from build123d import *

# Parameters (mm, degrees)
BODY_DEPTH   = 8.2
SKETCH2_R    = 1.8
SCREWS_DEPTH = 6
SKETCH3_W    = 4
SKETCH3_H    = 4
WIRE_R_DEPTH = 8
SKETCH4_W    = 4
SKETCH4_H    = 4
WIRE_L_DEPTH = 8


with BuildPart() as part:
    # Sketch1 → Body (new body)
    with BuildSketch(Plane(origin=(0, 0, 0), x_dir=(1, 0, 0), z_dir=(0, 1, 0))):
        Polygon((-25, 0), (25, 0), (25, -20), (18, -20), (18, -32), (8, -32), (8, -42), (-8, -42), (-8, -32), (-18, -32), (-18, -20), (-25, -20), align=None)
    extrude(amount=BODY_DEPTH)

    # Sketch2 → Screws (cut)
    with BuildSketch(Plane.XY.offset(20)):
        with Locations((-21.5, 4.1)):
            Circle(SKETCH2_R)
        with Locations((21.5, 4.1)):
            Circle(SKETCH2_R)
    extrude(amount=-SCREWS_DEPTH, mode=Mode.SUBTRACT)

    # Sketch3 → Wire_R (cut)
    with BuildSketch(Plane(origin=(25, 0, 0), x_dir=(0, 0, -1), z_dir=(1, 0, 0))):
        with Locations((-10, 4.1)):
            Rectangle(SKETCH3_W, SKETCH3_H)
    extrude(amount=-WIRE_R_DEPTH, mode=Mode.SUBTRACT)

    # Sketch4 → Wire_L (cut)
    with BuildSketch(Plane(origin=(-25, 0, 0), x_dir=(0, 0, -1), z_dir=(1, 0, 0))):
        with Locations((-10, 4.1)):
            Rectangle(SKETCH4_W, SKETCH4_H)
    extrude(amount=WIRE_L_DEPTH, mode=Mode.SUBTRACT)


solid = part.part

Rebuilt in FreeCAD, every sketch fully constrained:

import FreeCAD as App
import Part
import Sketcher

V = App.Vector


def add_polygon(sketch, points):
    """Adds a closed chain of lines whose ends are joined by coincident constraints."""
    first, n = sketch.GeometryCount, len(points)
    for a, b in zip(points, points[1:] + points[:1]):
        sketch.addGeometry(Part.LineSegment(App.Vector(*a, 0), App.Vector(*b, 0)), False)
    for i in range(n):
        sketch.addConstraint(Sketcher.Constraint("Coincident", first + i, 2, first + (i + 1) % n, 1))

doc = App.newDocument("Part")
params = doc.addObject("Spreadsheet::Sheet", "Params")
for row, (alias, value) in enumerate([
    ("sketch1_width", "50 mm"),
    ("sketch1_width2", "7 mm"),
    ("sketch1_width3", "10 mm"),
    ("sketch1_height", "20 mm"),
    ("sketch1_height2", "12 mm"),
    ("pad1_length", "8.2 mm"),
    ("sketch2_diameter", "3.6 mm"),
    ("pocket1_length", "6 mm"),
    ("sketch3_width", "4 mm"),
    ("pocket2_length", "8 mm"),
    ("sketch4_width", "4 mm"),
    ("pocket3_length", "8 mm"),
], start=1):
    params.set(f"A{row}", alias)
    params.set(f"B{row}", "=" + value)
    params.setAlias(f"B{row}", alias)

body = doc.addObject("PartDesign::Body", "Body")

sketch1 = body.newObject("Sketcher::SketchObject", "Sketch")
sketch1.AttachmentSupport = (doc.getObject("XZ_Plane"), [""])
sketch1.MapMode = "FlatFace"
add_polygon(sketch1, [(25, 0), (-25, 0), (-25, 20), (-18, 20), (-18, 32), (-8, 32), (-8, 42), (8, 42), (8, 32), (18, 32), (18, 20), (25, 20)])
sketch1.addConstraint([
    Sketcher.Constraint("Horizontal", 0),
    Sketcher.Constraint("Vertical", 1),
    Sketcher.Constraint("Horizontal", 2),
    Sketcher.Constraint("Vertical", 3),
    Sketcher.Constraint("Horizontal", 4),
    Sketcher.Constraint("Vertical", 5),
    Sketcher.Constraint("Horizontal", 6),
    Sketcher.Constraint("Vertical", 7),
    Sketcher.Constraint("Horizontal", 8),
    Sketcher.Constraint("Vertical", 9),
    Sketcher.Constraint("Horizontal", 10),
    Sketcher.Constraint("Vertical", 11),
    Sketcher.Constraint("Symmetric", 0, 2, 11, 2, -1, 1),
    Sketcher.Constraint("Symmetric", 4, 2, 7, 2, -2),
    Sketcher.Constraint("Symmetric", 2, 2, 9, 2, -2),
    Sketcher.Constraint("Equal", 8, 5),
    Sketcher.Constraint("DistanceX", 0, 2, 0, 1, 50.0),
    Sketcher.Constraint("DistanceX", 2, 1, 2, 2, 7.0),
    Sketcher.Constraint("DistanceX", 4, 1, 4, 2, 10.0),
    Sketcher.Constraint("DistanceY", 1, 1, 1, 2, 20.0),
    Sketcher.Constraint("DistanceY", 3, 1, 3, 2, 12.0),
])
sketch1.setExpression("Constraints[28]", "Params.sketch1_width")
sketch1.setExpression("Constraints[29]", "Params.sketch1_width2")
sketch1.setExpression("Constraints[30]", "Params.sketch1_width3")
sketch1.setExpression("Constraints[31]", "Params.sketch1_height")
sketch1.setExpression("Constraints[32]", "Params.sketch1_height2")
pad1 = body.newObject("PartDesign::Pad", "Pad")
pad1.Profile = sketch1
pad1.setExpression("Length", "Params.pad1_length")
pad1.Reversed = True

sketch2 = body.newObject("Sketcher::SketchObject", "Sketch001")
sketch2.AttachmentSupport = (doc.getObject("XY_Plane"), [""])
sketch2.MapMode = "FlatFace"
sketch2.AttachmentOffset = App.Placement(V(0, 0, 20), App.Rotation())
sketch2.addGeometry([
    Part.Circle(V(-21.5, 4.1, 0), V(0, 0, 1), 1.8),
    Part.Circle(V(21.5, 4.1, 0), V(0, 0, 1), 1.8),
], False)
sketch2.addConstraint([
    Sketcher.Constraint("Equal", 0, 1),
    Sketcher.Constraint("Symmetric", 0, 3, 1, 3, -2),
    Sketcher.Constraint("Diameter", 0, 3.6),
    Sketcher.Constraint("DistanceX", 0, 3, 1, 3, 43.0),
    Sketcher.Constraint("DistanceY", -1, 1, 0, 3, 4.1),
])
sketch2.setExpression("Constraints[2]", "Params.sketch2_diameter")
pocket1 = body.newObject("PartDesign::Pocket", "Pocket")
pocket1.Profile = sketch2
pocket1.setExpression("Length", "Params.pocket1_length")

sketch3 = body.newObject("Sketcher::SketchObject", "Sketch002")
sketch3.AttachmentSupport = (doc.getObject("YZ_Plane"), [""])
sketch3.MapMode = "FlatFace"
sketch3.AttachmentOffset = App.Placement(V(0, 0, 25), App.Rotation())
add_polygon(sketch3, [(6.1, 12), (2.1, 12), (2.1, 8), (6.1, 8)])
sketch3.addConstraint([
    Sketcher.Constraint("Horizontal", 0),
    Sketcher.Constraint("Vertical", 1),
    Sketcher.Constraint("Horizontal", 2),
    Sketcher.Constraint("Vertical", 3),
    Sketcher.Constraint("Equal", 2, 1),
    Sketcher.Constraint("DistanceX", 0, 2, 0, 1, 4.0),
    Sketcher.Constraint("DistanceY", -1, 1, 0, 2, 12.0),
    Sketcher.Constraint("DistanceX", -1, 1, 0, 2, 2.1),
])
sketch3.setExpression("Constraints[9]", "Params.sketch3_width")
pocket2 = body.newObject("PartDesign::Pocket", "Pocket001")
pocket2.Profile = sketch3
pocket2.setExpression("Length", "Params.pocket2_length")

sketch4 = body.newObject("Sketcher::SketchObject", "Sketch003")
sketch4.AttachmentSupport = (doc.getObject("YZ_Plane"), [""])
sketch4.MapMode = "FlatFace"
sketch4.AttachmentOffset = App.Placement(V(0, 0, -25), App.Rotation())
add_polygon(sketch4, [(6.1, 12), (2.1, 12), (2.1, 8), (6.1, 8)])
sketch4.addConstraint([
    Sketcher.Constraint("Horizontal", 0),
    Sketcher.Constraint("Vertical", 1),
    Sketcher.Constraint("Horizontal", 2),
    Sketcher.Constraint("Vertical", 3),
    Sketcher.Constraint("Equal", 2, 1),
    Sketcher.Constraint("DistanceX", 0, 2, 0, 1, 4.0),
    Sketcher.Constraint("DistanceY", -1, 1, 0, 2, 12.0),
    Sketcher.Constraint("DistanceX", -1, 1, 0, 2, 2.1),
])
sketch4.setExpression("Constraints[9]", "Params.sketch4_width")
pocket3 = body.newObject("PartDesign::Pocket", "Pocket002")
pocket3.Profile = sketch4
pocket3.setExpression("Length", "Params.pocket3_length")
pocket3.Reversed = True

doc.recompute()
